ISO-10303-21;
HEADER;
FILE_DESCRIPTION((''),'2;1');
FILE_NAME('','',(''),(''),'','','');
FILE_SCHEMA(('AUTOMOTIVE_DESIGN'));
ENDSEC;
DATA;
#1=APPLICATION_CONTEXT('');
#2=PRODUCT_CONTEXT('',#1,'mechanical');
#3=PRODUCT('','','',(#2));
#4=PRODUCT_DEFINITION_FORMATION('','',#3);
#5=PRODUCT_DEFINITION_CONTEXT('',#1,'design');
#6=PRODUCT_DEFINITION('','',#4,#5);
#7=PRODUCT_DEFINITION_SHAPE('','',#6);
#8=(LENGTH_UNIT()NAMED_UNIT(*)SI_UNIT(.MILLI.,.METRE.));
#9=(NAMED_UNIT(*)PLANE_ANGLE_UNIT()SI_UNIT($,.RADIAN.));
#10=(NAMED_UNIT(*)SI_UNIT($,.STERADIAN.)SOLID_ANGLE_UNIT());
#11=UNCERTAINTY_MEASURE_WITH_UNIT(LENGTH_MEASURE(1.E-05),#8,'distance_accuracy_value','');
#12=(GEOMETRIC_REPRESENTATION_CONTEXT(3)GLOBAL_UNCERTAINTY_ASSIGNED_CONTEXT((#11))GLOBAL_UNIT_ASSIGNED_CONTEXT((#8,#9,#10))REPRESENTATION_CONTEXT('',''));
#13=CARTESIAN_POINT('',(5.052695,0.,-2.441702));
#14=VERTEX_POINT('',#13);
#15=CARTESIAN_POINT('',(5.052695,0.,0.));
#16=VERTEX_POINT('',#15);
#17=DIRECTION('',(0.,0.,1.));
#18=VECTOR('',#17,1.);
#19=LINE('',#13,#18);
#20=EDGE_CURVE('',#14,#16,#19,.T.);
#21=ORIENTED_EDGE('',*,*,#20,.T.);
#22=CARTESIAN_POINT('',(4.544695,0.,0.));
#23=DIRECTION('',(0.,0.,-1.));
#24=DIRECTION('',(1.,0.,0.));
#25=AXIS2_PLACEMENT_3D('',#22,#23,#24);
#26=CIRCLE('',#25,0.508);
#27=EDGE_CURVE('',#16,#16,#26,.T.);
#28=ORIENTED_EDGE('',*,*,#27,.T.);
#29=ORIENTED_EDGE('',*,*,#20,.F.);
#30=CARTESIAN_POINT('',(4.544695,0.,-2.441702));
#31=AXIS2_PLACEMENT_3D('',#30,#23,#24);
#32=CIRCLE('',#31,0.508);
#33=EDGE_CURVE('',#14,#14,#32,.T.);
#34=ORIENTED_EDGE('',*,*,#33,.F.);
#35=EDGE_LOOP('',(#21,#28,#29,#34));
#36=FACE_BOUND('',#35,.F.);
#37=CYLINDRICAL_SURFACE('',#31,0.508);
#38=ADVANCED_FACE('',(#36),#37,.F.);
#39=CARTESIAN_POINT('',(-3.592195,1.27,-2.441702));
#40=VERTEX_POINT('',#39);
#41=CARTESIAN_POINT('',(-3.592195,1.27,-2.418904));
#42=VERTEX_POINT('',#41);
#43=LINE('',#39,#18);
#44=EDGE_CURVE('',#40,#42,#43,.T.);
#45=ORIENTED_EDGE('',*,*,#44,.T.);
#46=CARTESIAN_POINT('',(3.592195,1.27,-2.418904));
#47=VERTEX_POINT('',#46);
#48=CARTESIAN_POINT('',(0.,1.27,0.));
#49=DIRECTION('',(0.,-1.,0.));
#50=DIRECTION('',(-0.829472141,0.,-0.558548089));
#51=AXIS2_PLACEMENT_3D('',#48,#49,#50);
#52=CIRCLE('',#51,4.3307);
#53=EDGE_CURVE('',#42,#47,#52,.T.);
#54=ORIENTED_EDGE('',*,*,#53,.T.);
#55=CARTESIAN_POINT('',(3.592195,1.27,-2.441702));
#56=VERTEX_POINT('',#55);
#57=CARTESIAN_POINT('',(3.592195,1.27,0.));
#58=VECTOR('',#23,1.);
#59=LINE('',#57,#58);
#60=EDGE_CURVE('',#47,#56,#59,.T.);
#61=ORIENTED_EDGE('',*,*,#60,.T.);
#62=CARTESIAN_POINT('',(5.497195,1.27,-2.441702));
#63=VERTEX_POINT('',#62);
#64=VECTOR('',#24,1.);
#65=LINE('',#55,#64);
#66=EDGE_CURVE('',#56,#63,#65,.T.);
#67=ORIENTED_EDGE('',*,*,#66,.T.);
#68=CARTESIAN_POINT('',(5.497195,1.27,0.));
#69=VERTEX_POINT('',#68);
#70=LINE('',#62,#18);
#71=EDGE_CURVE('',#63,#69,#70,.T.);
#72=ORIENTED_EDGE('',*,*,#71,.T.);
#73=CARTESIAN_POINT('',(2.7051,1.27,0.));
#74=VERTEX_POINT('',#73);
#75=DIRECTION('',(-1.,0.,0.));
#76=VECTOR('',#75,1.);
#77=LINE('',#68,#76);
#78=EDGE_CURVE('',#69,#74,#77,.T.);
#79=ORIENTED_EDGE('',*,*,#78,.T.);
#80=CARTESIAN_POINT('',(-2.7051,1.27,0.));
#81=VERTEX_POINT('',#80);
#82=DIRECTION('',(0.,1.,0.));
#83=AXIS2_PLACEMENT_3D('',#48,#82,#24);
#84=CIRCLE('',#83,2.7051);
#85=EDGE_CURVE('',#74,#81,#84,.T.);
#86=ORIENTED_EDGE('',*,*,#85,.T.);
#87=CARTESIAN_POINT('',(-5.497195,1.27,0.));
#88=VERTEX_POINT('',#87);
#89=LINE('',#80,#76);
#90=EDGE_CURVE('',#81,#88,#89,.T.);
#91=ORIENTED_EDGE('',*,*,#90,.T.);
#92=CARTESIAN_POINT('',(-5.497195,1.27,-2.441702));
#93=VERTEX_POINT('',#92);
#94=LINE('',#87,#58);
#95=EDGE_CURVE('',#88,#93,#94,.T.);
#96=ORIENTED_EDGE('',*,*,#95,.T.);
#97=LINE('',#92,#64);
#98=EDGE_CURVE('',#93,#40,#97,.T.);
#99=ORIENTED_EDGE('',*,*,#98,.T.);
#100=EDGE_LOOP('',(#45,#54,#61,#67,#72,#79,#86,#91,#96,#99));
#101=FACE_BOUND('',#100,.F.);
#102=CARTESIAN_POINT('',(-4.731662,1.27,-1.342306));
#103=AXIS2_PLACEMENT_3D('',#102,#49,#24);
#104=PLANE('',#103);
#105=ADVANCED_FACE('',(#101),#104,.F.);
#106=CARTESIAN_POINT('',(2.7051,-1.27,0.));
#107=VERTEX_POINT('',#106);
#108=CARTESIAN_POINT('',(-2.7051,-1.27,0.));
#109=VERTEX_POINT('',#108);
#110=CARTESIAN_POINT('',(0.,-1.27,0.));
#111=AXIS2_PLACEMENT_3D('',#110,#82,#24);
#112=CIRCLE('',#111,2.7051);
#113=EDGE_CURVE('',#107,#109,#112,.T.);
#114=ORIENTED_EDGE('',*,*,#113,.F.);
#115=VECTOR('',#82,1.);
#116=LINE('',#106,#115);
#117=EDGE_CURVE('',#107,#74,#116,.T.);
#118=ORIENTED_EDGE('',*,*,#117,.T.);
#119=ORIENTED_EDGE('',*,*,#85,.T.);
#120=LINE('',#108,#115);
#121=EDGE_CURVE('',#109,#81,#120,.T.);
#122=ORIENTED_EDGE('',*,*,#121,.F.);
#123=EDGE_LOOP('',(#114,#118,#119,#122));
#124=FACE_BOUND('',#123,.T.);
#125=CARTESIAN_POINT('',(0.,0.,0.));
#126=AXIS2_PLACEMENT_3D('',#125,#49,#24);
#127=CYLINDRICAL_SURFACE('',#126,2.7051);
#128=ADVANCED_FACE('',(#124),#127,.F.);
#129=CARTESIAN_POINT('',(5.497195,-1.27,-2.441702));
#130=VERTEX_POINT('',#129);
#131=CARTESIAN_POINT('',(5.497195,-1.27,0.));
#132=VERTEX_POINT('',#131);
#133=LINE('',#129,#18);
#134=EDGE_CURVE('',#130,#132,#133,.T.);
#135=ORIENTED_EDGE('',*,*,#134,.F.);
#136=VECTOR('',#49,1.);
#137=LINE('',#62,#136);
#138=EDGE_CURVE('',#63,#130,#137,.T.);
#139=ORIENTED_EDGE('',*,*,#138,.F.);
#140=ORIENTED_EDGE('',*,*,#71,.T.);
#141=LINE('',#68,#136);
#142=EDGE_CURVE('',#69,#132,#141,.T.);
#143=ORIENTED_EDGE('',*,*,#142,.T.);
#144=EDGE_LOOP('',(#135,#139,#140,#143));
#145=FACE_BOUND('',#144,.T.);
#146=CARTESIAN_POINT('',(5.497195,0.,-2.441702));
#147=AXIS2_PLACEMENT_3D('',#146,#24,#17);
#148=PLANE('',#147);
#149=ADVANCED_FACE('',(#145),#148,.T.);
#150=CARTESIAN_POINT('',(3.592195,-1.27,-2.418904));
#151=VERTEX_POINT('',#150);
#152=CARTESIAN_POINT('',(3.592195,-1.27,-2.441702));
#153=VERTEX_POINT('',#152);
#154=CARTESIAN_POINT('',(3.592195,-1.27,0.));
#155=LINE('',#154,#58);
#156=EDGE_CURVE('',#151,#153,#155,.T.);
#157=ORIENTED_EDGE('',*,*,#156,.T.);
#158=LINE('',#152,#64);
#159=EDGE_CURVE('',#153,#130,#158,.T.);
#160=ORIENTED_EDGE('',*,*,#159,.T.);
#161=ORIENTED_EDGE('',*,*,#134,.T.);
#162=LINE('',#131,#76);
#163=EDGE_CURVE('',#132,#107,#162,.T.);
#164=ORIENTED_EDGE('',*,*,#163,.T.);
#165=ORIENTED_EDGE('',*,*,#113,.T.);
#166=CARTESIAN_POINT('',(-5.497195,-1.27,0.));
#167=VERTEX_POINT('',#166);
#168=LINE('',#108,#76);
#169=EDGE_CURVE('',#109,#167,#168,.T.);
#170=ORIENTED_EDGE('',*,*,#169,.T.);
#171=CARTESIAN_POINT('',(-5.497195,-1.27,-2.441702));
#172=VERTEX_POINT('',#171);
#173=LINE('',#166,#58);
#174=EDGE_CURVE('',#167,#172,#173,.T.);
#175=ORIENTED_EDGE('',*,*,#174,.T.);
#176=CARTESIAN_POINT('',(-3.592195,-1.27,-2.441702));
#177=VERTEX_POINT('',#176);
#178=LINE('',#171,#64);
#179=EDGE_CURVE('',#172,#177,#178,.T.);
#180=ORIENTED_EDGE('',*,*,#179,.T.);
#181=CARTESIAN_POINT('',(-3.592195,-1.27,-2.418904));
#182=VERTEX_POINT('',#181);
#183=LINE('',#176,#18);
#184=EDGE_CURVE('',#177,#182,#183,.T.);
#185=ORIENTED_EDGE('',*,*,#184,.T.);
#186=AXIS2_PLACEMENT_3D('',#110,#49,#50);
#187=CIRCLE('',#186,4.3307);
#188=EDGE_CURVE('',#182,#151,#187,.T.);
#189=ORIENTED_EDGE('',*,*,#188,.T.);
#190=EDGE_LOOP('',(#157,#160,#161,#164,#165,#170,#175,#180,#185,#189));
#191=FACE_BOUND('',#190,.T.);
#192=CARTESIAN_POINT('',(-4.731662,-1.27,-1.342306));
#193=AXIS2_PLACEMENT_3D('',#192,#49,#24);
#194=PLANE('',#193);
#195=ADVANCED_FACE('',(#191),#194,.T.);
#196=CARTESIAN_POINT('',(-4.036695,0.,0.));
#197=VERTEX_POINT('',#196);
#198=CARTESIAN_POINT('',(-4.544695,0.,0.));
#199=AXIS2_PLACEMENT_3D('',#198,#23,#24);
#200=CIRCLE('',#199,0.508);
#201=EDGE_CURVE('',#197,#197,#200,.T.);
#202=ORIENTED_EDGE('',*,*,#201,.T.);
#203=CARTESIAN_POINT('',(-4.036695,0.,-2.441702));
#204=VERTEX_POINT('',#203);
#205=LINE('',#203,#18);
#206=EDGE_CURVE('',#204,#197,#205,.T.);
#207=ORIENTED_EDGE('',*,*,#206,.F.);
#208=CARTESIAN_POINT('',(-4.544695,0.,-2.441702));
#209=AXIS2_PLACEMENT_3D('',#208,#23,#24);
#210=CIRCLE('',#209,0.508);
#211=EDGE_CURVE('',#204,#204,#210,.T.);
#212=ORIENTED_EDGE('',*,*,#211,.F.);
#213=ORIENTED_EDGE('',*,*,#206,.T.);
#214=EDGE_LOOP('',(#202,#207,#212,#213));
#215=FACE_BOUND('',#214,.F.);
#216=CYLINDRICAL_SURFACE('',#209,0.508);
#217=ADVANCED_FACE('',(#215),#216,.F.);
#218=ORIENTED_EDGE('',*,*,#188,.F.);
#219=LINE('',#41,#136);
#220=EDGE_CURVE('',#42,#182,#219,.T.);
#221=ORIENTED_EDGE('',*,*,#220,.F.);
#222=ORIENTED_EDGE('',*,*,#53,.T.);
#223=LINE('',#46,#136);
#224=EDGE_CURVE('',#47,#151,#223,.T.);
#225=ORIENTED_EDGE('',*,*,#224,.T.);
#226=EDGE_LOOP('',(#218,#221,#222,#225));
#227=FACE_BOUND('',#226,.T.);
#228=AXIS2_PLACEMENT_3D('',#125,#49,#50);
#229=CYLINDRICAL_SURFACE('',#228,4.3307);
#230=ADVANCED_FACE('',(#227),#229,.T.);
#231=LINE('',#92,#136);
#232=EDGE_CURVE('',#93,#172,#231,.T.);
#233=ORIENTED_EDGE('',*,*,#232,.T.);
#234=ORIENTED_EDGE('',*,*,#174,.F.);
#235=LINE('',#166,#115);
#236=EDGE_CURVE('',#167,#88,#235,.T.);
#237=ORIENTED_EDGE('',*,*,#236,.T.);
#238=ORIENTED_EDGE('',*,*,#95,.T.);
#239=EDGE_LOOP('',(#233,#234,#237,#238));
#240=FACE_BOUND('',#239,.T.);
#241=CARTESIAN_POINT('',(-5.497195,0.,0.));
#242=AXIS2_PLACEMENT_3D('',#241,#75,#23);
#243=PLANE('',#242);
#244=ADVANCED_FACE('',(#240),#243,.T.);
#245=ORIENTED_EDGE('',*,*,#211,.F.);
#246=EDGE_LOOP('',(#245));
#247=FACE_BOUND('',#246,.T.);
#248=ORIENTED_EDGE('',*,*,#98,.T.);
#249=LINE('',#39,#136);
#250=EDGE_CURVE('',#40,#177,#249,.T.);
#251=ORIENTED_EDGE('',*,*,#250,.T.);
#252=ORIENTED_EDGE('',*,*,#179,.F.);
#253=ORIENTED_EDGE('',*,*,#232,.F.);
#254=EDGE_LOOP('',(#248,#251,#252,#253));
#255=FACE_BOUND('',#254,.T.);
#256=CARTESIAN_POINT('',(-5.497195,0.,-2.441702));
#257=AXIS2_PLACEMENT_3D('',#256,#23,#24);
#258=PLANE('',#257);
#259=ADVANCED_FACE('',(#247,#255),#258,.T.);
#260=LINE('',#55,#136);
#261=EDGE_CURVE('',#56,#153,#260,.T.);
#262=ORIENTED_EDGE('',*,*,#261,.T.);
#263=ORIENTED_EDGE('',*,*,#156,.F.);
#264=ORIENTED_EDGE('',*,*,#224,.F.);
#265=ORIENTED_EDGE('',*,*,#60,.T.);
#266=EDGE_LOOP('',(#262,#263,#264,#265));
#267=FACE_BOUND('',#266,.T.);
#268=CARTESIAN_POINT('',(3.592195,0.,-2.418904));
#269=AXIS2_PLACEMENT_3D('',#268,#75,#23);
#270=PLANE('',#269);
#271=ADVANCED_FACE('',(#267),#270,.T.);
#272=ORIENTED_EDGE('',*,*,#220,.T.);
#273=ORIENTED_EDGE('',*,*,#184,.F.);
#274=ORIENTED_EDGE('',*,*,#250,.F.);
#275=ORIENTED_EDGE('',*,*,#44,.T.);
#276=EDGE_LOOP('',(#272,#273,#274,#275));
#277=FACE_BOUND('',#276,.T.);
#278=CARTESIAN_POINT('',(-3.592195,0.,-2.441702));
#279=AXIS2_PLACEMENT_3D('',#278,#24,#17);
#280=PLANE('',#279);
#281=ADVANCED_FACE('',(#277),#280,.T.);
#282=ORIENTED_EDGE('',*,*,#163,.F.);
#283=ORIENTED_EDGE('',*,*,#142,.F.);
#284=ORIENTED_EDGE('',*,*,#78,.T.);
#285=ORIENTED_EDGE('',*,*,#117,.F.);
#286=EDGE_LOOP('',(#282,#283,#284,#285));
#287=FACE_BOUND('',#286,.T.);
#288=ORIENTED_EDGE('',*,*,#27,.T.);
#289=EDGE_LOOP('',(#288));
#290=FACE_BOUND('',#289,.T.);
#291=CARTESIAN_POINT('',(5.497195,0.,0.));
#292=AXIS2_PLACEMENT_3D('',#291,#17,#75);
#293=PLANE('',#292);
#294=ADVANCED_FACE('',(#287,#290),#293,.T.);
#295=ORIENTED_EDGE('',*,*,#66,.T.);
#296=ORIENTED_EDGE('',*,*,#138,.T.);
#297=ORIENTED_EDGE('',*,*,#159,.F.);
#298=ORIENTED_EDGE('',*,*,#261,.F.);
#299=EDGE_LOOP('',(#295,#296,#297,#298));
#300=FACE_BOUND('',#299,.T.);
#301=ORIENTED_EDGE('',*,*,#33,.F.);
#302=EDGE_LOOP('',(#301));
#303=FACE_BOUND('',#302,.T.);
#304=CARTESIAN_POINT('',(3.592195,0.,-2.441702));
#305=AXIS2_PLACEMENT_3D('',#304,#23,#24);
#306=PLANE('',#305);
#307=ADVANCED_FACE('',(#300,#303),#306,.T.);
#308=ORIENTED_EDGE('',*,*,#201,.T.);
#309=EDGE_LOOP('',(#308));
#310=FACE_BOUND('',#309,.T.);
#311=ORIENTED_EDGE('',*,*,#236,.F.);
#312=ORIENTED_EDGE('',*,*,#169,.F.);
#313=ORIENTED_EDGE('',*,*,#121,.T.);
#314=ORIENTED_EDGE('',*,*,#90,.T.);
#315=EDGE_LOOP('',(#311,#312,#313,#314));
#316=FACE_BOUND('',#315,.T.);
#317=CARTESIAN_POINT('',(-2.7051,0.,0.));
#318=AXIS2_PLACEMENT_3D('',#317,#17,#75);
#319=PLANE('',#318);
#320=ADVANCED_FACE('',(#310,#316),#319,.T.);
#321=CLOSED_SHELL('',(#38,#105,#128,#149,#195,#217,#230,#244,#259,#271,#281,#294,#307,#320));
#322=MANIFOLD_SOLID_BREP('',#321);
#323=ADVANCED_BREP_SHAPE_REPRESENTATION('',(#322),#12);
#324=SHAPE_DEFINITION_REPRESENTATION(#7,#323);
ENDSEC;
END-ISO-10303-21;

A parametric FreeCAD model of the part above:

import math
import FreeCAD as App
import Part
import Sketcher
from FreeCAD import Vector
Q = App.Units.Quantity

doc = App.newDocument("Part")
body = doc.addObject("PartDesign::Body", "Body")

sketch1 = body.newObject("Sketcher::SketchObject", "Sketch")
sketch1.AttachmentSupport = (doc.getObject("XZ_Plane"), [""])
sketch1.MapMode = "FlatFace"
sketch1.addGeometry(Part.LineSegment(Vector(-5.497, 0, 0), Vector(-5.497, -2.442, 0)), False)
sketch1.addGeometry(Part.LineSegment(Vector(-5.497, -2.442, 0), Vector(-3.592, -2.442, 0)), False)
sketch1.addGeometry(Part.LineSegment(Vector(-3.592, -2.442, 0), Vector(-3.592, -2.419, 0)), False)
sketch1.addGeometry(Part.ArcOfCircle(Part.Circle(Vector(0, 0, 0), Vector(0, 0, 1), 4.331), math.radians(-146), math.radians(-34)), False)
sketch1.addGeometry(Part.LineSegment(Vector(3.592, -2.419, 0), Vector(3.592, -2.442, 0)), False)
sketch1.addGeometry(Part.LineSegment(Vector(3.592, -2.442, 0), Vector(5.497, -2.442, 0)), False)
sketch1.addGeometry(Part.LineSegment(Vector(5.497, -2.442, 0), Vector(5.497, 0, 0)), False)
sketch1.addGeometry(Part.LineSegment(Vector(5.497, 0, 0), Vector(2.705, 0, 0)), False)
sketch1.addGeometry(Part.ArcOfCircle(Part.Circle(Vector(0, 0, 0), Vector(0, 0, 1), 2.705), math.radians(180), math.radians(360)), False)
sketch1.addGeometry(Part.LineSegment(Vector(-2.705, 0, 0), Vector(-5.497, 0, 0)), False)
sketch1.addConstraint(Sketcher.Constraint("Coincident", 0, 2, 1, 1))
sketch1.addConstraint(Sketcher.Constraint("Coincident", 1, 2, 2, 1))
sketch1.addConstraint(Sketcher.Constraint("Coincident", 2, 2, 3, 1))
sketch1.addConstraint(Sketcher.Constraint("Coincident", 3, 2, 4, 1))
sketch1.addConstraint(Sketcher.Constraint("Coincident", 4, 2, 5, 1))
sketch1.addConstraint(Sketcher.Constraint("Coincident", 5, 2, 6, 1))
sketch1.addConstraint(Sketcher.Constraint("Coincident", 6, 2, 7, 1))
sketch1.addConstraint(Sketcher.Constraint("Coincident", 7, 2, 8, 2))
sketch1.addConstraint(Sketcher.Constraint("Coincident", 8, 1, 9, 1))
sketch1.addConstraint(Sketcher.Constraint("Coincident", 9, 2, 0, 1))
sketch1.addConstraint(Sketcher.Constraint("Vertical", 0))
sketch1.addConstraint(Sketcher.Constraint("Horizontal", 1))
sketch1.addConstraint(Sketcher.Constraint("Vertical", 2))
sketch1.addConstraint(Sketcher.Constraint("Vertical", 4))
sketch1.addConstraint(Sketcher.Constraint("Horizontal", 5))
sketch1.addConstraint(Sketcher.Constraint("Vertical", 6))
sketch1.addConstraint(Sketcher.Constraint("Horizontal", 7))
sketch1.addConstraint(Sketcher.Constraint("Horizontal", 9))
sketch1.addConstraint(Sketcher.Constraint("Coincident", 3, 3, -1, 1))
sketch1.addConstraint(Sketcher.Constraint("Coincident", 8, 3, -1, 1))
sketch1.addConstraint(Sketcher.Constraint("Symmetric", 6, 2, 9, 2, -1, 1))
sketch1.addConstraint(Sketcher.Constraint("Symmetric", 1, 2, 4, 2, -2))
sketch1.addConstraint(Sketcher.Constraint("PointOnObject", 6, 2, -1))
sketch1.addConstraint(Sketcher.Constraint("Radius", 3, Q("0.1705 in")))
sketch1.addConstraint(Sketcher.Constraint("Radius", 8, Q("0.1065 in")))
sketch1.addConstraint(Sketcher.Constraint("DistanceX", 1, 1, 1, 2, Q("0.075 in")))
sketch1.addConstraint(Sketcher.Constraint("DistanceY", 0, 2, 0, 1, 2.441702))
sketch1.addConstraint(Sketcher.Constraint("DistanceX", 7, 2, 7, 1, 2.792095))
pad1 = body.newObject("PartDesign::Pad", "Pad")
pad1.Profile = sketch1
pad1.Length = Q("0.1 in")
pad1.Midplane = True

sketch2 = body.newObject("Sketcher::SketchObject", "Sketch001")
sketch2.AttachmentSupport = (doc.getObject("XY_Plane"), [""])
sketch2.MapMode = "FlatFace"
sketch2.AttachmentOffset = App.Placement(Vector(0, 0, -2.441702), App.Rotation())
sketch2.addGeometry(Part.Circle(Vector(4.5, 0, 0), Vector(0, 0, 1), 0.5), False)
sketch2.addGeometry(Part.Circle(Vector(-4.5, 0, 0), Vector(0, 0, 1), 0.5), False)
sketch2.addConstraint(Sketcher.Constraint("Equal", 0, 1))
sketch2.addConstraint(Sketcher.Constraint("Symmetric", 0, 3, 1, 3, -1, 1))
sketch2.addConstraint(Sketcher.Constraint("PointOnObject", 0, 3, -1))
sketch2.addConstraint(Sketcher.Constraint("Diameter", 0, Q("0.04 in")))
sketch2.addConstraint(Sketcher.Constraint("DistanceX", 1, 3, 0, 3, 9.08939))
pocket1 = body.newObject("PartDesign::Pocket", "Pocket")
pocket1.Profile = sketch2
pocket1.Length = Q("1 in")
pocket1.Reversed = True

doc.recompute()
